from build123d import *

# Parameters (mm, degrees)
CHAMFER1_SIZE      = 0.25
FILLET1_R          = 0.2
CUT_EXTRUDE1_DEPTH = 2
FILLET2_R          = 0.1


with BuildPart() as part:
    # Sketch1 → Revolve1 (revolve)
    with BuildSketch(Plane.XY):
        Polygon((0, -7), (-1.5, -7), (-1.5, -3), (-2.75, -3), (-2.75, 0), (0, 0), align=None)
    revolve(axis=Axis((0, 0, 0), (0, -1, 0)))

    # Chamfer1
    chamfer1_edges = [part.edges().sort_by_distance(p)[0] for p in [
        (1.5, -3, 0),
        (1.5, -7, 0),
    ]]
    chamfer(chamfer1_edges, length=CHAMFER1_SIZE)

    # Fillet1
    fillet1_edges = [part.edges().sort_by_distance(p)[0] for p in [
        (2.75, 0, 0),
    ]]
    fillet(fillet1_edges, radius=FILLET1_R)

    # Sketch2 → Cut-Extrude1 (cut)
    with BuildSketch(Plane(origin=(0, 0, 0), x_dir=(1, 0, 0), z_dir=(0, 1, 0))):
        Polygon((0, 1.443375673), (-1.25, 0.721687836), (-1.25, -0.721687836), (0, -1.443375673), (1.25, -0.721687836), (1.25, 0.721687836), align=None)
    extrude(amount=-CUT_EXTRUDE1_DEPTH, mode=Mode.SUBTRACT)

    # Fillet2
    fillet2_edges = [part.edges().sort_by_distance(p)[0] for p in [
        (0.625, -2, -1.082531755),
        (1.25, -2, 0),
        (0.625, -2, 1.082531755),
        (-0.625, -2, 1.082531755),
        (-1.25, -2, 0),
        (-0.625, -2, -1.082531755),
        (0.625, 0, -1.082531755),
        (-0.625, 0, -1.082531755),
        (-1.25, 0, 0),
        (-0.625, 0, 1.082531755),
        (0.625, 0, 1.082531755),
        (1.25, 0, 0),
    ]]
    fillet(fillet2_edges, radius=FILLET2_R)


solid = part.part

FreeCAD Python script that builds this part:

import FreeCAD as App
import Part
import Sketcher
Q = App.Units.Quantity


def edges_at(feature, points):
    """Names of the edges that pass closest to the given points."""
    edges = feature.Shape.Edges
    near = lambda p: min(range(len(edges)), key=lambda i: edges[i].distToShape(Part.Vertex(*p))[0])
    return sorted({f"Edge{near(p) + 1}" for p in points})


def add_polygon(sketch, points):
    """Adds a closed chain of lines whose ends are joined by coincident constraints."""
    first, n = sketch.GeometryCount, len(points)
    for a, b in zip(points, points[1:] + points[:1]):
        sketch.addGeometry(Part.LineSegment(App.Vector(*a, 0), App.Vector(*b, 0)), False)
    for i in range(n):
        sketch.addConstraint(Sketcher.Constraint("Coincident", first + i, 2, first + (i + 1) % n, 1))

doc = App.newDocument("Part")
body = doc.addObject("PartDesign::Body", "Body")

# Sketch on XY plane
sketch1 = body.newObject("Sketcher::SketchObject", "Sketch")
sketch1.AttachmentSupport = (doc.getObject("XY_Plane"), [""])
sketch1.MapMode = "FlatFace"
add_polygon(sketch1, [(-1.5, -7), (0, -7), (0, 0), (-2.8, 0), (-2.8, -3), (-1.5, -3)])  # lines 0-5
sketch1.addConstraint([
    Sketcher.Constraint("Horizontal", 0),
    Sketcher.Constraint("Vertical", 1),
    Sketcher.Constraint("Horizontal", 2),
    Sketcher.Constraint("Vertical", 3),
    Sketcher.Constraint("Horizontal", 4),
    Sketcher.Constraint("Vertical", 5),
    Sketcher.Constraint("Coincident", 1, 2, -1, 1),
    Sketcher.Constraint("DistanceY", 1, 1, 1, 2, Q("7 mm")),
    Sketcher.Constraint("DistanceY", 3, 2, 3, 1, Q("3 mm")),
    Sketcher.Constraint("DistanceX", 0, 1, 0, 2, Q("1.5 mm")),
    Sketcher.Constraint("DistanceX", 2, 2, 2, 1, Q("2.75 mm")),
])
revolution = body.newObject("PartDesign::Revolution", "Revolution")
revolution.Profile = sketch1
revolution.ReferenceAxis = (sketch1, ["V_Axis"])
revolution.Angle = 360
doc.recompute()

chamfer = body.newObject("PartDesign::Chamfer", "Chamfer")
chamfer.Base = (revolution, edges_at(revolution, [(1.5, -3, 0), (1.5, -7, 0)]))
chamfer.Size = 0.25
doc.recompute()

fillet = body.newObject("PartDesign::Fillet", "Fillet")
fillet.Base = (chamfer, edges_at(chamfer, [(2.75, 0, 0)]))
fillet.Radius = 0.2

# Sketch on XZ plane
sketch2 = body.newObject("Sketcher::SketchObject", "Sketch001")
sketch2.AttachmentSupport = (doc.getObject("XZ_Plane"), [""])
sketch2.MapMode = "FlatFace"
add_polygon(sketch2, [(0, -1.4), (-1.2, -0.7), (-1.2, 0.7), (0, 1.4), (1.2, 0.7), (1.2, -0.7)])  # lines 0-5
sketch2.addConstraint([
    Sketcher.Constraint("Vertical", 1),
    Sketcher.Constraint("Vertical", 4),
    Sketcher.Constraint("Symmetric", 0, 2, 3, 2, -1, 1),
    Sketcher.Constraint("Symmetric", 2, 2, 5, 2, -1, 1),
    Sketcher.Constraint("PointOnObject", 2, 2, -2),
    Sketcher.Constraint("Parallel", 2, 5),
    Sketcher.Constraint("Horizontal", 1, 2, 3, 2),
    Sketcher.Constraint("Angle", 0, Q("150 deg")),
    Sketcher.Constraint("DistanceX", 1, 2, 3, 2, Q("2.5 mm")),
    Sketcher.Constraint("DistanceY", 1, 1, 1, 2, Q("1.443376 mm")),
])
pocket1 = body.newObject("PartDesign::Pocket", "Pocket")
pocket1.Profile = sketch2
pocket1.Length = 2
pocket1.Reversed = True
doc.recompute()

fillet2 = body.newObject("PartDesign::Fillet", "Fillet001")
fillet2.Base = (pocket1, edges_at(pocket1, [
    (0.625, -2, -1.083),
    (1.25, -2, 0),
    (0.625, -2, 1.083),
    (-0.625, -2, 1.083),
    (-1.25, -2, 0),
    (-0.625, -2, -1.083),
    (0.625, 0, -1.083),
    (-0.625, 0, -1.083),
    (-1.25, 0, 0),
    (-0.625, 0, 1.083),
    (0.625, 0, 1.083),
    (1.25, 0, 0),
]))
fillet2.Radius = 0.1

doc.recompute()
